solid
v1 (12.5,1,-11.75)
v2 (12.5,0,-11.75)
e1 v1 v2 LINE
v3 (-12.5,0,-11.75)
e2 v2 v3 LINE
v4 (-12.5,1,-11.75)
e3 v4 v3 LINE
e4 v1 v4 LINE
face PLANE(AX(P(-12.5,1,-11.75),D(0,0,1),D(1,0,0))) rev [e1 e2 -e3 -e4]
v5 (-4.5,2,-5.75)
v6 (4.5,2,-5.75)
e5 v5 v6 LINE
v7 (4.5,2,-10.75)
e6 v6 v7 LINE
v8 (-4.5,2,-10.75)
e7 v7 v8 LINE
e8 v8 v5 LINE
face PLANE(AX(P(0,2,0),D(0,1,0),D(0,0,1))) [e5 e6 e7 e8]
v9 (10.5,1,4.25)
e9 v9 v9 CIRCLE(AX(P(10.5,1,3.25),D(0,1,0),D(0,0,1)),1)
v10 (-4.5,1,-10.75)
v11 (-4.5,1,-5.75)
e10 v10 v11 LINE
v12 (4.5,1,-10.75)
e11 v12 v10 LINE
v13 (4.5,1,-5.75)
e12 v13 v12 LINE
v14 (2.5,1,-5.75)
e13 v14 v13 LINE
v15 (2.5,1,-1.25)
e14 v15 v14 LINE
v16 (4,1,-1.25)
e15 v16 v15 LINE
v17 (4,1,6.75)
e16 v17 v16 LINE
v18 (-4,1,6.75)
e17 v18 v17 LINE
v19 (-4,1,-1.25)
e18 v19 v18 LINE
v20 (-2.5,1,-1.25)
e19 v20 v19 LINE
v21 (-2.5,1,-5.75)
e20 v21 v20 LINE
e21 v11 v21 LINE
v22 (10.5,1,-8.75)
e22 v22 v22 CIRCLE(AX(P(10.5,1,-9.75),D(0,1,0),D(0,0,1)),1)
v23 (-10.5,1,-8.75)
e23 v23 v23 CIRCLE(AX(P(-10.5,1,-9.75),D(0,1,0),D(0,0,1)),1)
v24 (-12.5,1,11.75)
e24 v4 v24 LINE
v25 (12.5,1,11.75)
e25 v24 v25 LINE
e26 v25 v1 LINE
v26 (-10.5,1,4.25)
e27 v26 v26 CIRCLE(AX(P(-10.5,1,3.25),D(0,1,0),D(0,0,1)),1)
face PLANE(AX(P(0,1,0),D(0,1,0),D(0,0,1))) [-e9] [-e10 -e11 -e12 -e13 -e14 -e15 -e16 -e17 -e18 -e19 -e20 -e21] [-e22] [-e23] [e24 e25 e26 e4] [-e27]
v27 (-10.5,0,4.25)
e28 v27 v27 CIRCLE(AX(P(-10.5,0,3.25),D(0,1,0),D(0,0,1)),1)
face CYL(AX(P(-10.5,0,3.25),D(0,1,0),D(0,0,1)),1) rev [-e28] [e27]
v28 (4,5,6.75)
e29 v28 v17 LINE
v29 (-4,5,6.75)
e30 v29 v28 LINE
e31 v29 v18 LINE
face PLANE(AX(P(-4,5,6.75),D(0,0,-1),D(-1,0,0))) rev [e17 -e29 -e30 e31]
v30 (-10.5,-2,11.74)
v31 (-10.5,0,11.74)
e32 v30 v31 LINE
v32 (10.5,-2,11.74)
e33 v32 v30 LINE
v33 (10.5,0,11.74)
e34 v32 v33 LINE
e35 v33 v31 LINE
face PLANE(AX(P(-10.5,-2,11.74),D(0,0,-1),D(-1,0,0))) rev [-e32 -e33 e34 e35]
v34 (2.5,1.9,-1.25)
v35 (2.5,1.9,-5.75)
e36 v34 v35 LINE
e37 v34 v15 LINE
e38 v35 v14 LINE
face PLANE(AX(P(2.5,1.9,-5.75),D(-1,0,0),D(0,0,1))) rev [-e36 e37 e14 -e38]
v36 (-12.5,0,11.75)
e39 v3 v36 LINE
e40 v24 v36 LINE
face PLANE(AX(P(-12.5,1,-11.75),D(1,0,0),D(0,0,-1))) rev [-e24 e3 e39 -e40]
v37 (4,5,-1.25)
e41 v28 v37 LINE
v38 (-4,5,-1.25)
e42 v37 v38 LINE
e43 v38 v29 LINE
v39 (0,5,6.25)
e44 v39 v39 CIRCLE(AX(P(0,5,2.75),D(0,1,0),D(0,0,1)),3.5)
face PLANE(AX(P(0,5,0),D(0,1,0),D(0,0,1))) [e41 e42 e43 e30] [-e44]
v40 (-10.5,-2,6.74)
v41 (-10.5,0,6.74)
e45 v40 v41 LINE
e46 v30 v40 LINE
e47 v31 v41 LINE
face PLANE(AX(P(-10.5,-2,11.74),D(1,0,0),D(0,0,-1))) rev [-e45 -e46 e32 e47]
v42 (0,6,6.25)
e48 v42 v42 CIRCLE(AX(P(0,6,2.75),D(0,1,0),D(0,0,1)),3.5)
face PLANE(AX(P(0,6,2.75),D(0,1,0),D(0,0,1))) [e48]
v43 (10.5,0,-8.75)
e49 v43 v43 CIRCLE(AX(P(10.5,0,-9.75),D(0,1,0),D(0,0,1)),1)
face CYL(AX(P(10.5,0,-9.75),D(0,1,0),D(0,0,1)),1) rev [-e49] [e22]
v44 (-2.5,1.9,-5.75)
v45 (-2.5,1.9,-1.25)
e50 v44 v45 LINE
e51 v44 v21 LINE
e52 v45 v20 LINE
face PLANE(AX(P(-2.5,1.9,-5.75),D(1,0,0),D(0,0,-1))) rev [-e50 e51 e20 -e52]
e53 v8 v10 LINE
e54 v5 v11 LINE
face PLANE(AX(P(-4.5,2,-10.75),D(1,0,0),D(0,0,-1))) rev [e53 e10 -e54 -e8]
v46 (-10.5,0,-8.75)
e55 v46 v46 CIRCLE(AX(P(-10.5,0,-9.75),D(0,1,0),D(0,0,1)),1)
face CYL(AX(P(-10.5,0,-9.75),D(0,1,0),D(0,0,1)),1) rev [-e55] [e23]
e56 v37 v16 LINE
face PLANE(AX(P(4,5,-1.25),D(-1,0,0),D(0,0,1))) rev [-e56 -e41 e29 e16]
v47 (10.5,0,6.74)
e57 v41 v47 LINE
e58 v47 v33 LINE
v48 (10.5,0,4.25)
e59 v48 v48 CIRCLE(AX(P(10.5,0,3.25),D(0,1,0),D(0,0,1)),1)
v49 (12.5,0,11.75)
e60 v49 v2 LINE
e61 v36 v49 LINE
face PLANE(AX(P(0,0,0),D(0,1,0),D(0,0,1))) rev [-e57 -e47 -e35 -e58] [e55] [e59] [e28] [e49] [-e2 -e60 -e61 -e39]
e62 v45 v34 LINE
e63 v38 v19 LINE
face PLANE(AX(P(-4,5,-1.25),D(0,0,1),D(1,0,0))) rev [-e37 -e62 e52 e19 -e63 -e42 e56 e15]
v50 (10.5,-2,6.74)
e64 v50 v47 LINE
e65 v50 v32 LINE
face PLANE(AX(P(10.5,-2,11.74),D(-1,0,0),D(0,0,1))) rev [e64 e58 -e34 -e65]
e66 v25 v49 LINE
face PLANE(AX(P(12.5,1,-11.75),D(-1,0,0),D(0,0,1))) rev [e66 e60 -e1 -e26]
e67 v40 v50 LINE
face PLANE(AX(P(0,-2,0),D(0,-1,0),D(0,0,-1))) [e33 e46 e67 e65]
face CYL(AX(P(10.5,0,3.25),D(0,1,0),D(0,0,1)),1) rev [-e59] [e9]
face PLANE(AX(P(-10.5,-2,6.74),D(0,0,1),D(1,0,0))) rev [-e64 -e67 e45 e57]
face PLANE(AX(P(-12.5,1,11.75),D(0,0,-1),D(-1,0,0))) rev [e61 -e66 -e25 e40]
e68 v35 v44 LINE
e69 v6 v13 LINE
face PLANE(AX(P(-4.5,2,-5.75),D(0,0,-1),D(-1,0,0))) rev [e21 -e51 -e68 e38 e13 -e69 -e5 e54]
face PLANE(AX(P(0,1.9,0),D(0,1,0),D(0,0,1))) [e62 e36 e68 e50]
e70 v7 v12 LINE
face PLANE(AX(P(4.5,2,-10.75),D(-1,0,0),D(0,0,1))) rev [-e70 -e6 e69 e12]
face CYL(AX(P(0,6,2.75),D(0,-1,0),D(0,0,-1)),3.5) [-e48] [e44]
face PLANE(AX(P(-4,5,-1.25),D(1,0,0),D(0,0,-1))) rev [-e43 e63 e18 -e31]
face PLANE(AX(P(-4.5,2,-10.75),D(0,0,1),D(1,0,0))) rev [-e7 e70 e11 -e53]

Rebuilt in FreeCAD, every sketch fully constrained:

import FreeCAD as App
import Part
import Sketcher
Q = App.Units.Quantity


def add_polygon(sketch, points):
    """Adds a closed chain of lines whose ends are joined by coincident constraints."""
    first, n = sketch.GeometryCount, len(points)
    for a, b in zip(points, points[1:] + points[:1]):
        sketch.addGeometry(Part.LineSegment(App.Vector(*a, 0), App.Vector(*b, 0)), False)
    for i in range(n):
        sketch.addConstraint(Sketcher.Constraint("Coincident", first + i, 2, first + (i + 1) % n, 1))

doc = App.newDocument("Part")
body = doc.addObject("PartDesign::Body", "Body")

# Sketch on XZ plane
sketch1 = body.newObject("Sketcher::SketchObject", "Sketch")
sketch1.AttachmentSupport = (doc.getObject("XZ_Plane"), [""])
sketch1.MapMode = "FlatFace"
add_polygon(sketch1, [(-12.5, -11.75), (-12.5, 11.75), (12.5, 11.75), (12.5, -11.75)])  # lines 0-3
sketch1.addConstraint(Sketcher.Constraint("Vertical", 0))
sketch1.addConstraint(Sketcher.Constraint("Horizontal", 1))
sketch1.addConstraint(Sketcher.Constraint("Vertical", 2))
sketch1.addConstraint(Sketcher.Constraint("Horizontal", 3))
sketch1.addConstraint(Sketcher.Constraint("Symmetric", 0, 2, 2, 2, -1, 1))
sketch1.addConstraint(Sketcher.Constraint("DistanceX", 1, 1, 1, 2, Q("25 mm")))
sketch1.addConstraint(Sketcher.Constraint("DistanceY", 0, 1, 0, 2, Q("23.5 mm")))
pad1 = body.newObject("PartDesign::Pad", "Pad")
pad1.Profile = sketch1
pad1.Length = 1
pad1.Reversed = True

# Sketch on XZ plane
sketch2 = body.newObject("Sketcher::SketchObject", "Sketch001")
sketch2.AttachmentSupport = (doc.getObject("XZ_Plane"), [""])
sketch2.MapMode = "FlatFace"
sketch2.AttachmentOffset = App.Placement(App.Vector(0, 0, -1), App.Rotation())
sketch2.addGeometry(Part.Circle(App.Vector(-10.5, -9.75, 0), App.Vector(0, 0, 1), 1), False)
sketch2.addGeometry(Part.Circle(App.Vector(10.5, -9.75, 0), App.Vector(0, 0, 1), 1), False)
sketch2.addGeometry(Part.Circle(App.Vector(10.5, 3.25, 0), App.Vector(0, 0, 1), 1), False)
sketch2.addGeometry(Part.Circle(App.Vector(-10.5, 3.25, 0), App.Vector(0, 0, 1), 1), False)
sketch2.addConstraint(Sketcher.Constraint("Equal", 0, 1))
sketch2.addConstraint(Sketcher.Constraint("Equal", 1, 2))
sketch2.addConstraint(Sketcher.Constraint("Equal", 2, 3))
sketch2.addConstraint(Sketcher.Constraint("Symmetric", 0, 3, 1, 3, -2))
sketch2.addConstraint(Sketcher.Constraint("Symmetric", 2, 3, 3, 3, -2))
sketch2.addConstraint(Sketcher.Constraint("Vertical", 1, 3, 2, 3))
sketch2.addConstraint(Sketcher.Constraint("Diameter", 0, Q("2 mm")))
sketch2.addConstraint(Sketcher.Constraint("DistanceX", 0, 3, 1, 3, Q("21 mm")))
sketch2.addConstraint(Sketcher.Constraint("DistanceY", 1, 3, 2, 3, Q("13 mm")))
sketch2.addConstraint(Sketcher.Constraint("DistanceY", 0, 3, -1, 1, Q("9.75 mm")))
pocket1 = body.newObject("PartDesign::Pocket", "Pocket")
pocket1.Profile = sketch2
pocket1.Length = 1
pocket1.Reversed = True

# Sketch on XZ plane
sketch3 = body.newObject("Sketcher::SketchObject", "Sketch002")
sketch3.AttachmentSupport = (doc.getObject("XZ_Plane"), [""])
sketch3.MapMode = "FlatFace"
sketch3.AttachmentOffset = App.Placement(App.Vector(0, 0, -1), App.Rotation())
add_polygon(sketch3, [(-4.5, -10.75), (-4.5, -5.75), (4.5, -5.75), (4.5, -10.75)])  # lines 0-3
sketch3.addConstraint(Sketcher.Constraint("Vertical", 0))
sketch3.addConstraint(Sketcher.Constraint("Horizontal", 1))
sketch3.addConstraint(Sketcher.Constraint("Vertical", 2))
sketch3.addConstraint(Sketcher.Constraint("Horizontal", 3))
sketch3.addConstraint(Sketcher.Constraint("DistanceX", 1, 1, 1, 2, Q("9 mm")))
sketch3.addConstraint(Sketcher.Constraint("DistanceY", 0, 1, 0, 2, Q("5 mm")))
sketch3.addConstraint(Sketcher.Constraint("DistanceX", 0, 2, -1, 1, Q("4.5 mm")))
sketch3.addConstraint(Sketcher.Constraint("DistanceY", 0, 2, -1, 1, Q("5.75 mm")))
pad2 = body.newObject("PartDesign::Pad", "Pad001")
pad2.Profile = sketch3
pad2.Length = 1
pad2.Reversed = True

# Sketch on XZ plane
sketch4 = body.newObject("Sketcher::SketchObject", "Sketch003")
sketch4.AttachmentSupport = (doc.getObject("XZ_Plane"), [""])
sketch4.MapMode = "FlatFace"
sketch4.AttachmentOffset = App.Placement(App.Vector(0, 0, -1), App.Rotation())
add_polygon(sketch4, [(-2.5, -5.75), (-2.5, -1.25), (2.5, -1.25), (2.5, -5.75)])  # lines 0-3
sketch4.addConstraint(Sketcher.Constraint("Vertical", 0))
sketch4.addConstraint(Sketcher.Constraint("Horizontal", 1))
sketch4.addConstraint(Sketcher.Constraint("Vertical", 2))
sketch4.addConstraint(Sketcher.Constraint("Horizontal", 3))
sketch4.addConstraint(Sketcher.Constraint("DistanceX", 1, 1, 1, 2, Q("5 mm")))
sketch4.addConstraint(Sketcher.Constraint("DistanceY", 0, 1, 0, 2, Q("4.5 mm")))
sketch4.addConstraint(Sketcher.Constraint("DistanceX", 0, 2, -1, 1, Q("2.5 mm")))
sketch4.addConstraint(Sketcher.Constraint("DistanceY", 0, 2, -1, 1, Q("1.25 mm")))
pad3 = body.newObject("PartDesign::Pad", "Pad002")
pad3.Profile = sketch4
pad3.Length = 0.9
pad3.Reversed = True

# Sketch on XZ plane
sketch5 = body.newObject("Sketcher::SketchObject", "Sketch004")
sketch5.AttachmentSupport = (doc.getObject("XZ_Plane"), [""])
sketch5.MapMode = "FlatFace"
sketch5.AttachmentOffset = App.Placement(App.Vector(0, 0, -1), App.Rotation())
add_polygon(sketch5, [(-4, -1.25), (-4, 6.75), (4, 6.75), (4, -1.25)])  # lines 0-3
sketch5.addConstraint(Sketcher.Constraint("Vertical", 0))
sketch5.addConstraint(Sketcher.Constraint("Horizontal", 1))
sketch5.addConstraint(Sketcher.Constraint("Vertical", 2))
sketch5.addConstraint(Sketcher.Constraint("Horizontal", 3))
sketch5.addConstraint(Sketcher.Constraint("Equal", 3, 0))
sketch5.addConstraint(Sketcher.Constraint("DistanceX", 1, 1, 1, 2, Q("8 mm")))
sketch5.addConstraint(Sketcher.Constraint("DistanceX", 0, 2, -1, 1, Q("4 mm")))
sketch5.addConstraint(Sketcher.Constraint("DistanceY", -1, 1, 0, 2, Q("6.75 mm")))
pad4 = body.newObject("PartDesign::Pad", "Pad003")
pad4.Profile = sketch5
pad4.Length = 4
pad4.Reversed = True

# Sketch on XZ plane
sketch6 = body.newObject("Sketcher::SketchObject", "Sketch005")
sketch6.AttachmentSupport = (doc.getObject("XZ_Plane"), [""])
sketch6.MapMode = "FlatFace"
sketch6.AttachmentOffset = App.Placement(App.Vector(0, 0, -5), App.Rotation())
sketch6.addGeometry(Part.Circle(App.Vector(0, 2.75, 0), App.Vector(0, 0, 1), 3.5), False)
sketch6.addConstraint(Sketcher.Constraint("PointOnObject", 0, 3, -2))
sketch6.addConstraint(Sketcher.Constraint("Diameter", 0, Q("7 mm")))
sketch6.addConstraint(Sketcher.Constraint("DistanceY", -1, 1, 0, 3, Q("2.75 mm")))
pad5 = body.newObject("PartDesign::Pad", "Pad004")
pad5.Profile = sketch6
pad5.Length = 1
pad5.Reversed = True

# Sketch on XZ plane
sketch7 = body.newObject("Sketcher::SketchObject", "Sketch006")
sketch7.AttachmentSupport = (doc.getObject("XZ_Plane"), [""])
sketch7.MapMode = "FlatFace"
add_polygon(sketch7, [(-10.5, 11.74), (-10.5, 6.74), (10.5, 6.74), (10.5, 11.74)])  # lines 0-3
sketch7.addConstraint(Sketcher.Constraint("Vertical", 0))
sketch7.addConstraint(Sketcher.Constraint("Horizontal", 1))
sketch7.addConstraint(Sketcher.Constraint("Vertical", 2))
sketch7.addConstraint(Sketcher.Constraint("Horizontal", 3))
sketch7.addConstraint(Sketcher.Constraint("DistanceX", 1, 1, 1, 2, Q("21 mm")))
sketch7.addConstraint(Sketcher.Constraint("DistanceY", 0, 2, 0, 1, Q("5 mm")))
sketch7.addConstraint(Sketcher.Constraint("DistanceX", 0, 2, -1, 1, Q("10.5 mm")))
sketch7.addConstraint(Sketcher.Constraint("DistanceY", -1, 1, 0, 2, Q("6.74 mm")))
pad6 = body.newObject("PartDesign::Pad", "Pad005")
pad6.Profile = sketch7
pad6.Length = 2

doc.recompute()
